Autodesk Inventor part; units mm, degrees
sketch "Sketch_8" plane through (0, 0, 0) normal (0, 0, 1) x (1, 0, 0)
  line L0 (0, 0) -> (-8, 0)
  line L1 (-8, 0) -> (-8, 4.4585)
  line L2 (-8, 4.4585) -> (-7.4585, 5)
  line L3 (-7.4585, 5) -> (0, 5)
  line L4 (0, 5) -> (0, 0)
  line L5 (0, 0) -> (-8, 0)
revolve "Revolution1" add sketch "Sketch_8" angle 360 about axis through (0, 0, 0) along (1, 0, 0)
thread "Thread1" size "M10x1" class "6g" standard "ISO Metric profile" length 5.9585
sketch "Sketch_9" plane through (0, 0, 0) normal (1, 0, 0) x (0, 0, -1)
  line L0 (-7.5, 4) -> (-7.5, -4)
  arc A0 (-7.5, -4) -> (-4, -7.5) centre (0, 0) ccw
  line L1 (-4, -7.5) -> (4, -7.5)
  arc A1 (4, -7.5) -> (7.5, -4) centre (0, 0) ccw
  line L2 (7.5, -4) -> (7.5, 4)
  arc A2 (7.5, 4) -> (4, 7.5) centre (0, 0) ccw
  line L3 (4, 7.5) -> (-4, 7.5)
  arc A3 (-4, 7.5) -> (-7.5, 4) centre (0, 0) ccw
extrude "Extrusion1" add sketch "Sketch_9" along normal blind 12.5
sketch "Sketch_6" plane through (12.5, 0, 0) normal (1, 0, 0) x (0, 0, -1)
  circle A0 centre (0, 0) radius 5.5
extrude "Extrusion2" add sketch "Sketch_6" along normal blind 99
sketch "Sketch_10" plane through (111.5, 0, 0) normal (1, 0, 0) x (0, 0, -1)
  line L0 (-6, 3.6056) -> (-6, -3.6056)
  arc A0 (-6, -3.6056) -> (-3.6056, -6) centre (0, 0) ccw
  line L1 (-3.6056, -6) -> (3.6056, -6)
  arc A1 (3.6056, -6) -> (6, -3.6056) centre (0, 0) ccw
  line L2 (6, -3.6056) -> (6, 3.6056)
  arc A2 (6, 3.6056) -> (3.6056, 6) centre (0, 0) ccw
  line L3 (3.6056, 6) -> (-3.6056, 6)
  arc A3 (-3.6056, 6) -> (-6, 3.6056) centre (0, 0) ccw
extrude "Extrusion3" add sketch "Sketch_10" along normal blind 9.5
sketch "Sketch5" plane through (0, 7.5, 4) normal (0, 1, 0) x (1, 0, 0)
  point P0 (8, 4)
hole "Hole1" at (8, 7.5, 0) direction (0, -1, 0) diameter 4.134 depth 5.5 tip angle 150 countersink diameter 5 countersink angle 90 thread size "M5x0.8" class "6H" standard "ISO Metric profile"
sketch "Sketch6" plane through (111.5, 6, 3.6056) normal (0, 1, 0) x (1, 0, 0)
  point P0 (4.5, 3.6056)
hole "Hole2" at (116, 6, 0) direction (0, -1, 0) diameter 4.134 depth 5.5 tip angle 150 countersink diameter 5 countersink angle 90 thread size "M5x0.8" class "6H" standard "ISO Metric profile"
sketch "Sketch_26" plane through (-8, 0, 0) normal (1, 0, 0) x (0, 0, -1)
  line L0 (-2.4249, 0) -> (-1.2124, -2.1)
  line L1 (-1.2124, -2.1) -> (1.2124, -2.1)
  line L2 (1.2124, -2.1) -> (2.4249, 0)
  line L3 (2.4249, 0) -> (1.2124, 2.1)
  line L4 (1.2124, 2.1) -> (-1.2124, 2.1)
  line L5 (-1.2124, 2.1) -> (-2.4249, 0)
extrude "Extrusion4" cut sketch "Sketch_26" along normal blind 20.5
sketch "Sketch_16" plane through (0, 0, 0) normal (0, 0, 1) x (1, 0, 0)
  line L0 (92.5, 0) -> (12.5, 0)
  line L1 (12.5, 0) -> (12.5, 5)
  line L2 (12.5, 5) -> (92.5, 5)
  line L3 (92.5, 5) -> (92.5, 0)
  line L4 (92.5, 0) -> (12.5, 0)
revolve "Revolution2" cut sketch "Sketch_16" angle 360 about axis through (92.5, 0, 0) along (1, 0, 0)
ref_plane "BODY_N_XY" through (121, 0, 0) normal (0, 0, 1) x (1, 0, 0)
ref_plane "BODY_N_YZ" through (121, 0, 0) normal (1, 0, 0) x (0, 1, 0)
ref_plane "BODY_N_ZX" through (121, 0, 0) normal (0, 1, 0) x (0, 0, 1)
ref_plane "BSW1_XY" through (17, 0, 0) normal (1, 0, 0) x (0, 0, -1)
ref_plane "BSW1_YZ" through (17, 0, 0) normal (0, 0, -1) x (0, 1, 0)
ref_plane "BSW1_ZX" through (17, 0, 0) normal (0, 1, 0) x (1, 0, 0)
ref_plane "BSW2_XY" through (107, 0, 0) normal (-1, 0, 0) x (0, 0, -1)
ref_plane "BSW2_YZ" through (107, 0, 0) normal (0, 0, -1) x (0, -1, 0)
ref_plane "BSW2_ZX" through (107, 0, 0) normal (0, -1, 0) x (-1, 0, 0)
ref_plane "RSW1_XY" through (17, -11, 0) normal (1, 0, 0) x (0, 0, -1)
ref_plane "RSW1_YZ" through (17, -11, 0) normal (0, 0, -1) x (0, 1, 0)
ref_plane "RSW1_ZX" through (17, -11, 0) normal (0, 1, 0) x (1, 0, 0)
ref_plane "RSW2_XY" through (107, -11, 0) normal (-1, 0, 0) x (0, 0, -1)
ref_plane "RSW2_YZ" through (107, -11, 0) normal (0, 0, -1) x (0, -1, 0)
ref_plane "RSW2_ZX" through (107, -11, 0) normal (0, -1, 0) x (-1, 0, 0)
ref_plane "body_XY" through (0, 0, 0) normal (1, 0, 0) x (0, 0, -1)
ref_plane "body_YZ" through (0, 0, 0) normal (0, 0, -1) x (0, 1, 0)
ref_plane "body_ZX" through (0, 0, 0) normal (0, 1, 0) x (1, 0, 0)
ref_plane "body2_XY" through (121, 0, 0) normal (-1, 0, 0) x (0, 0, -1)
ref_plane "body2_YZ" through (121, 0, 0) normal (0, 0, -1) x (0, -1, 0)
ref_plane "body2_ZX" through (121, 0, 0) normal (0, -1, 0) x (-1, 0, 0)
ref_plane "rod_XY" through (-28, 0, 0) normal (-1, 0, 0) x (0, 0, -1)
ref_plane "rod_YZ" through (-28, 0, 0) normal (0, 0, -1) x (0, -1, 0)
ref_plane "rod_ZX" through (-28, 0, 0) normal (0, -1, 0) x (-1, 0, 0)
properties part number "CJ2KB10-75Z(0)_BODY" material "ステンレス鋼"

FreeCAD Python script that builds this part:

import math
import FreeCAD as App
import Part
import Sketcher

V = App.Vector
Q = App.Units.Quantity


def add_polygon(sketch, points):
    """Adds a closed chain of lines whose ends are joined by coincident constraints."""
    first, n = sketch.GeometryCount, len(points)
    for a, b in zip(points, points[1:] + points[:1]):
        sketch.addGeometry(Part.LineSegment(App.Vector(*a, 0), App.Vector(*b, 0)), False)
    for i in range(n):
        sketch.addConstraint(Sketcher.Constraint("Coincident", first + i, 2, first + (i + 1) % n, 1))

doc = App.newDocument("Part")
body = doc.addObject("PartDesign::Body", "Body")

# Sketch on XY plane
sketch1 = body.newObject("Sketcher::SketchObject", "Sketch")
sketch1.AttachmentSupport = (doc.getObject("XY_Plane"), [""])
sketch1.MapMode = "FlatFace"
add_polygon(sketch1, [(-8, 0), (0, 0), (0, 5), (-7.5, 5), (-8, 4.5)])  # lines 0-4
sketch1.addConstraint([
    Sketcher.Constraint("Horizontal", 0),
    Sketcher.Constraint("Vertical", 1),
    Sketcher.Constraint("Horizontal", 2),
    Sketcher.Constraint("Vertical", 4),
    Sketcher.Constraint("Coincident", 0, 2, -1, 1),
    Sketcher.Constraint("DistanceX", 0, 1, 0, 2, Q("8 mm")),
    Sketcher.Constraint("DistanceY", 1, 1, 1, 2, Q("5 mm")),
    Sketcher.Constraint("Angle", 3, Q("-135 deg")),
    Sketcher.Constraint("DistanceX", 2, 2, 2, 1, Q("7.4585 mm")),
])
revolution = body.newObject("PartDesign::Revolution", "Revolution")
revolution.Profile = sketch1
revolution.ReferenceAxis = (sketch1, ["H_Axis"])
revolution.Angle = 360

# Sketch on YZ plane
sketch2 = body.newObject("Sketcher::SketchObject", "Sketch001")
sketch2.AttachmentSupport = (doc.getObject("YZ_Plane"), [""])
sketch2.MapMode = "FlatFace"
sketch2.addGeometry([
    Part.ArcOfCircle(Part.Circle(V(0, 0, 0), V(0, 0, 1), 8.5), math.radians(28), math.radians(62)),  # 0
    Part.LineSegment(V(4, 7.5, 0), V(-4, 7.5, 0)),  # 1
    Part.ArcOfCircle(Part.Circle(V(0, 0, 0), V(0, 0, 1), 8.5), math.radians(118), math.radians(152)),  # 2
    Part.LineSegment(V(-7.5, 4, 0), V(-7.5, -4, 0)),  # 3
    Part.ArcOfCircle(Part.Circle(V(0, 0, 0), V(0, 0, 1), 8.5), math.radians(-152), math.radians(-118)),  # 4
    Part.LineSegment(V(-4, -7.5, 0), V(4, -7.5, 0)),  # 5
    Part.ArcOfCircle(Part.Circle(V(0, 0, 0), V(0, 0, 1), 8.5), math.radians(-62), math.radians(-28)),  # 6
    Part.LineSegment(V(7.5, -4, 0), V(7.5, 4, 0)),  # 7
], False)
sketch2.addConstraint([
    Sketcher.Constraint("Coincident", 0, 2, 1, 1),
    Sketcher.Constraint("Coincident", 1, 2, 2, 1),
    Sketcher.Constraint("Coincident", 2, 2, 3, 1),
    Sketcher.Constraint("Coincident", 3, 2, 4, 1),
    Sketcher.Constraint("Coincident", 4, 2, 5, 1),
    Sketcher.Constraint("Coincident", 5, 2, 6, 1),
    Sketcher.Constraint("Coincident", 6, 2, 7, 1),
    Sketcher.Constraint("Coincident", 7, 2, 0, 1),
    Sketcher.Constraint("Horizontal", 1),
    Sketcher.Constraint("Vertical", 3),
    Sketcher.Constraint("Horizontal", 5),
    Sketcher.Constraint("Vertical", 7),
    Sketcher.Constraint("Coincident", 0, 3, -1, 1),
    Sketcher.Constraint("Coincident", 2, 3, -1, 1),
    Sketcher.Constraint("Coincident", 4, 3, -1, 1),
    Sketcher.Constraint("Coincident", 6, 3, -1, 1),
    Sketcher.Constraint("Equal", 0, 2),
    Sketcher.Constraint("Equal", 2, 4),
    Sketcher.Constraint("Equal", 4, 6),
    Sketcher.Constraint("Horizontal", 3, 2, 6, 2),
    Sketcher.Constraint("Vertical", 1, 2, 4, 2),
    Sketcher.Constraint("Equal", 5, 3),
    Sketcher.Constraint("Radius", 0, Q("8.5 mm")),
    Sketcher.Constraint("DistanceX", 1, 2, 1, 1, Q("8 mm")),
])
pad1 = body.newObject("PartDesign::Pad", "Pad")
pad1.Profile = sketch2
pad1.Length = 12.5

# Sketch on YZ plane
sketch3 = body.newObject("Sketcher::SketchObject", "Sketch002")
sketch3.AttachmentSupport = (doc.getObject("YZ_Plane"), [""])
sketch3.MapMode = "FlatFace"
sketch3.AttachmentOffset = App.Placement(V(0, 0, 12.5), App.Rotation())
sketch3.addGeometry(Part.Circle(V(0, 0, 0), V(0, 0, 1), 6), False)
sketch3.addConstraint([
    Sketcher.Constraint("Coincident", 0, 3, -1, 1),
    Sketcher.Constraint("Diameter", 0, Q("11 mm")),
])
pad2 = body.newObject("PartDesign::Pad", "Pad001")
pad2.Profile = sketch3
pad2.Length = 99

# Sketch on YZ plane
sketch4 = body.newObject("Sketcher::SketchObject", "Sketch003")
sketch4.AttachmentSupport = (doc.getObject("YZ_Plane"), [""])
sketch4.MapMode = "FlatFace"
sketch4.AttachmentOffset = App.Placement(V(0, 0, 111.5), App.Rotation())
sketch4.addGeometry([
    Part.ArcOfCircle(Part.Circle(V(0, 0, 0), V(0, 0, 1), 7), math.radians(31), math.radians(59)),  # 0
    Part.LineSegment(V(3.6, 6, 0), V(-3.6, 6, 0)),  # 1
    Part.ArcOfCircle(Part.Circle(V(0, 0, 0), V(0, 0, 1), 7), math.radians(121), math.radians(149)),  # 2
    Part.LineSegment(V(-6, 3.6, 0), V(-6, -3.6, 0)),  # 3
    Part.ArcOfCircle(Part.Circle(V(0, 0, 0), V(0, 0, 1), 7), math.radians(-149), math.radians(-121)),  # 4
    Part.LineSegment(V(-3.6, -6, 0), V(3.6, -6, 0)),  # 5
    Part.ArcOfCircle(Part.Circle(V(0, 0, 0), V(0, 0, 1), 7), math.radians(-59), math.radians(-31)),  # 6
    Part.LineSegment(V(6, -3.6, 0), V(6, 3.6, 0)),  # 7
], False)
sketch4.addConstraint([
    Sketcher.Constraint("Coincident", 0, 2, 1, 1),
    Sketcher.Constraint("Coincident", 1, 2, 2, 1),
    Sketcher.Constraint("Coincident", 2, 2, 3, 1),
    Sketcher.Constraint("Coincident", 3, 2, 4, 1),
    Sketcher.Constraint("Coincident", 4, 2, 5, 1),
    Sketcher.Constraint("Coincident", 5, 2, 6, 1),
    Sketcher.Constraint("Coincident", 6, 2, 7, 1),
    Sketcher.Constraint("Coincident", 7, 2, 0, 1),
    Sketcher.Constraint("Horizontal", 1),
    Sketcher.Constraint("Vertical", 3),
    Sketcher.Constraint("Horizontal", 5),
    Sketcher.Constraint("Vertical", 7),
    Sketcher.Constraint("Coincident", 0, 3, -1, 1),
    Sketcher.Constraint("Coincident", 2, 3, -1, 1),
    Sketcher.Constraint("Coincident", 4, 3, -1, 1),
    Sketcher.Constraint("Coincident", 6, 3, -1, 1),
    Sketcher.Constraint("Equal", 0, 2),
    Sketcher.Constraint("Equal", 2, 4),
    Sketcher.Constraint("Equal", 4, 6),
    Sketcher.Constraint("Horizontal", 3, 2, 6, 2),
    Sketcher.Constraint("Vertical", 1, 2, 4, 2),
    Sketcher.Constraint("Equal", 5, 3),
    Sketcher.Constraint("Radius", 0, Q("7 mm")),
    Sketcher.Constraint("DistanceY", -1, 1, 0, 2, Q("6 mm")),
])
pad3 = body.newObject("PartDesign::Pad", "Pad002")
pad3.Profile = sketch4
pad3.Length = 9.5

# Sketch on XZ plane
sketch5 = body.newObject("Sketcher::SketchObject", "Sketch004")
sketch5.AttachmentSupport = (doc.getObject("XZ_Plane"), [""])
sketch5.MapMode = "FlatFace"
sketch5.AttachmentOffset = App.Placement(V(0, 0, -7.5), App.Rotation())
sketch5.addGeometry(Part.Circle(V(8, 0, 0), V(0, 0, 1), 2.1), False)
sketch5.addConstraint([
    Sketcher.Constraint("PointOnObject", 0, 3, -1),
    Sketcher.Constraint("Diameter", 0, Q("4.134 mm")),
    Sketcher.Constraint("DistanceX", -1, 1, 0, 3, Q("8 mm")),
])
doc.recompute()
hole = body.newObject("PartDesign::Hole", "Hole")
hole.Profile = sketch5
hole.ThreadType = "None"
hole.Diameter = 4.134
hole.DepthType = "Dimension"
hole.Depth = 5.5
hole.DrillPoint = "Angled"
hole.DrillPointAngle = 150
hole.HoleCutType = "Countersink"
hole.HoleCutDiameter = 5
hole.HoleCutCountersinkAngle = 90
hole.Reversed = True

# Sketch on XZ plane
sketch6 = body.newObject("Sketcher::SketchObject", "Sketch005")
sketch6.AttachmentSupport = (doc.getObject("XZ_Plane"), [""])
sketch6.MapMode = "FlatFace"
sketch6.AttachmentOffset = App.Placement(V(0, 0, -6), App.Rotation())
sketch6.addGeometry(Part.Circle(V(116, 0, 0), V(0, 0, 1), 2.1), False)
sketch6.addConstraint([
    Sketcher.Constraint("PointOnObject", 0, 3, -1),
    Sketcher.Constraint("Diameter", 0, Q("4.134 mm")),
    Sketcher.Constraint("DistanceX", -1, 1, 0, 3, Q("116 mm")),
])
doc.recompute()
hole2 = body.newObject("PartDesign::Hole", "Hole001")
hole2.Profile = sketch6
hole2.ThreadType = "None"
hole2.Diameter = 4.134
hole2.DepthType = "Dimension"
hole2.Depth = 5.5
hole2.DrillPoint = "Angled"
hole2.DrillPointAngle = 150
hole2.HoleCutType = "Countersink"
hole2.HoleCutDiameter = 5
hole2.HoleCutCountersinkAngle = 90
hole2.Reversed = True

# Sketch on YZ plane
sketch7 = body.newObject("Sketcher::SketchObject", "Sketch006")
sketch7.AttachmentSupport = (doc.getObject("YZ_Plane"), [""])
sketch7.MapMode = "FlatFace"
sketch7.AttachmentOffset = App.Placement(V(0, 0, -8), App.Rotation())
add_polygon(sketch7, [(2.1, 1.2), (0, 2.4), (-2.1, 1.2), (-2.1, -1.2), (0, -2.4), (2.1, -1.2)])  # lines 0-5
sketch7.addConstraint([
    Sketcher.Constraint("Vertical", 2),
    Sketcher.Constraint("Vertical", 5),
    Sketcher.Constraint("Symmetric", 0, 2, 3, 2, -1, 1),
    Sketcher.Constraint("Symmetric", 1, 2, 4, 2, -1, 1),
    Sketcher.Constraint("PointOnObject", 0, 2, -2),
    Sketcher.Constraint("Parallel", 0, 3),
    Sketcher.Constraint("Horizontal", 2, 2, 4, 2),
    Sketcher.Constraint("DistanceX", 1, 2, -1, 1, Q("2.1 mm")),
    Sketcher.Constraint("Distance", 0, Q("2.425 mm")),
    Sketcher.Constraint("DistanceY", 2, 2, 2, 1, Q("2.4248 mm")),
])
pocket1 = body.newObject("PartDesign::Pocket", "Pocket")
pocket1.Profile = sketch7
pocket1.Length = 20.5
pocket1.Reversed = True

# Sketch on XY plane
sketch8 = body.newObject("Sketcher::SketchObject", "Sketch007")
sketch8.AttachmentSupport = (doc.getObject("XY_Plane"), [""])
sketch8.MapMode = "FlatFace"
add_polygon(sketch8, [(12, 0), (92, 0), (92, 5), (12, 5)])  # lines 0-3
sketch8.addConstraint([
    Sketcher.Constraint("Horizontal", 0),
    Sketcher.Constraint("Vertical", 1),
    Sketcher.Constraint("Horizontal", 2),
    Sketcher.Constraint("Vertical", 3),
    Sketcher.Constraint("PointOnObject", 0, 2, -1),
    Sketcher.Constraint("DistanceX", 0, 1, 0, 2, Q("80 mm")),
    Sketcher.Constraint("DistanceY", 1, 1, 1, 2, Q("5 mm")),
    Sketcher.Constraint("DistanceX", -1, 1, 0, 2, Q("92.5 mm")),
])
groove = body.newObject("PartDesign::Groove", "Groove")
groove.Profile = sketch8
groove.ReferenceAxis = (sketch8, ["H_Axis"])
groove.Angle = 360

doc.recompute()
